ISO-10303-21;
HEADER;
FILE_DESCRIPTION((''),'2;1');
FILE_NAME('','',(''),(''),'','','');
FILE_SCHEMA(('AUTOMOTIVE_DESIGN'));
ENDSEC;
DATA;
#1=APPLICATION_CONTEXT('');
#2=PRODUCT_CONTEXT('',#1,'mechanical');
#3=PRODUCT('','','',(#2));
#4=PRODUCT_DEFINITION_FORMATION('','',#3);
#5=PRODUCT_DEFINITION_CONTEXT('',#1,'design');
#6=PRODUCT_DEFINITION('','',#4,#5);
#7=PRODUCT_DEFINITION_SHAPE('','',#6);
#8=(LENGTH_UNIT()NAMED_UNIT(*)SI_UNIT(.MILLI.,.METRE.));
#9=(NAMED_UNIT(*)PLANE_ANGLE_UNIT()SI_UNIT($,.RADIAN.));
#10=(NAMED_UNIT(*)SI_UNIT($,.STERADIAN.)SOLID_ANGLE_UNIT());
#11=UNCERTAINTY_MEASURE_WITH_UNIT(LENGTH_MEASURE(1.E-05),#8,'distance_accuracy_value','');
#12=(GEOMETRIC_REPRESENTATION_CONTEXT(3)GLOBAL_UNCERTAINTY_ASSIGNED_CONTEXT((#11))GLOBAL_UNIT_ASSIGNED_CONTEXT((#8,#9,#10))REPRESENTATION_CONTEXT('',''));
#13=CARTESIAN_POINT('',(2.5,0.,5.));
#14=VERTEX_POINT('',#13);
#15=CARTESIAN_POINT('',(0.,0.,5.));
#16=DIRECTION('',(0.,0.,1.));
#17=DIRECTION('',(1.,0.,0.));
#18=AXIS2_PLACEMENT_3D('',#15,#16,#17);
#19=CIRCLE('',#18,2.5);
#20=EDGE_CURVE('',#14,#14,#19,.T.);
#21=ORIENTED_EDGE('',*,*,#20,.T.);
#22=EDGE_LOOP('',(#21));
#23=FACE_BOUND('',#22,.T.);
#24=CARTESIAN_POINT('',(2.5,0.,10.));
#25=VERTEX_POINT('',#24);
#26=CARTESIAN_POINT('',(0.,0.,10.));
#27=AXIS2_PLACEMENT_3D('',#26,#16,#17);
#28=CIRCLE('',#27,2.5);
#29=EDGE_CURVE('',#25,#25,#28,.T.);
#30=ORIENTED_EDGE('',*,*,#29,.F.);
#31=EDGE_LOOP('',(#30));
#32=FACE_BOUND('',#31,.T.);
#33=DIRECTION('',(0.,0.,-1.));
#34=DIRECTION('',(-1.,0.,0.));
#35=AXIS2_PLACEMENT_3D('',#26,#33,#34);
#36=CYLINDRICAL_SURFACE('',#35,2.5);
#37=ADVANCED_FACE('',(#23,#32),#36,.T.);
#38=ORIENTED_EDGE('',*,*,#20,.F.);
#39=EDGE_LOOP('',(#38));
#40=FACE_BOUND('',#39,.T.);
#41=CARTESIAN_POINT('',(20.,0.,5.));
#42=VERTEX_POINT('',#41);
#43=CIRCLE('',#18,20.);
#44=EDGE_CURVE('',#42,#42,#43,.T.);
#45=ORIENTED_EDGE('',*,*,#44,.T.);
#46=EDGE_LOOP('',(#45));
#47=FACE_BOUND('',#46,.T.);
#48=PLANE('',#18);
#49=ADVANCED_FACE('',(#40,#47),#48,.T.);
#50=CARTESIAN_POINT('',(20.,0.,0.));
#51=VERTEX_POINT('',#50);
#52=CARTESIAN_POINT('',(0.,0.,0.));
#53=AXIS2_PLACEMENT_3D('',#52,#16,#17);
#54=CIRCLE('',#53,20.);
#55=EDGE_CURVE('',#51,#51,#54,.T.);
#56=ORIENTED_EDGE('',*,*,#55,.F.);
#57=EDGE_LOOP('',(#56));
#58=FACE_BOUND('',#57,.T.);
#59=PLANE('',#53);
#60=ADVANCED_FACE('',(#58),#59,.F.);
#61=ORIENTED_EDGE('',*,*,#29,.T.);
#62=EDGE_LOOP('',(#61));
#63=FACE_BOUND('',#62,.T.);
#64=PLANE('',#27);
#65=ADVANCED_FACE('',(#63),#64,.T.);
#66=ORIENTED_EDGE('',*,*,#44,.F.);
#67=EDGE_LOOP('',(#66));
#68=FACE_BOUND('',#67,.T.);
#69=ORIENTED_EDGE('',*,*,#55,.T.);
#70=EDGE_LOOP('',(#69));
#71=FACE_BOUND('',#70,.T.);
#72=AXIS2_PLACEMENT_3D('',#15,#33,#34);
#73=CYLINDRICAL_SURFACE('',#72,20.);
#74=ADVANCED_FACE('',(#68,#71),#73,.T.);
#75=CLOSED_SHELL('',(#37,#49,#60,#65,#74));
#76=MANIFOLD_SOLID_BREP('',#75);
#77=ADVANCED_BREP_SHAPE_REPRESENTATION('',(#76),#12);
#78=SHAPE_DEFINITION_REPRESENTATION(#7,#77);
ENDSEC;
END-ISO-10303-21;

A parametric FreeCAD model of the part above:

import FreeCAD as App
import Part
import Sketcher
from FreeCAD import Vector
Q = App.Units.Quantity

doc = App.newDocument("Part")
params = doc.addObject("Spreadsheet::Sheet", "Params")
for row, (alias, value) in enumerate([
    ("sketch1_diameter", "40 mm"),
    ("pad1_length", "5 mm"),
    ("sketch2_diameter", "5 mm"),
    ("pad2_length", "5 mm"),
], start=1):
    params.set(f"A{row}", alias)
    params.set(f"B{row}", "=" + value)
    params.setAlias(f"B{row}", alias)

body = doc.addObject("PartDesign::Body", "Body")

# Sketch on XY plane
sketch1 = doc.addObject("Sketcher::SketchObject", "Sketch")
body.addObject(sketch1)
sketch1.AttachmentSupport = (doc.XY_Plane, [""])
sketch1.MapMode = "FlatFace"
sketch1.addGeometry(Part.Circle(Vector(0, 0, 0), Vector(0, 0, 1), 20), False)
sketch1.addConstraint([
    Sketcher.Constraint("Coincident", 0, 3, -1, 1),
    Sketcher.Constraint("Diameter", 0, Q("40 mm")),
])
sketch1.setExpression("Constraints[1]", "Params.sketch1_diameter")
pad1 = doc.addObject("PartDesign::Pad", "Pad")
body.addObject(pad1)
pad1.Profile = sketch1
pad1.setExpression("Length", "Params.pad1_length")

# Sketch on XY plane
sketch2 = doc.addObject("Sketcher::SketchObject", "Sketch001")
body.addObject(sketch2)
sketch2.AttachmentSupport = (doc.XY_Plane, [""])
sketch2.MapMode = "FlatFace"
sketch2.AttachmentOffset = App.Placement(Vector(0, 0, 5), App.Rotation())
sketch2.addGeometry(Part.Circle(Vector(0, 0, 0), Vector(0, 0, 1), 2.5), False)
sketch2.addConstraint([
    Sketcher.Constraint("Coincident", 0, 3, -1, 1),
    Sketcher.Constraint("Diameter", 0, Q("5 mm")),
])
sketch2.setExpression("Constraints[1]", "Params.sketch2_diameter")
pad2 = doc.addObject("PartDesign::Pad", "Pad001")
body.addObject(pad2)
pad2.Profile = sketch2
pad2.setExpression("Length", "Params.pad2_length")

doc.recompute()
